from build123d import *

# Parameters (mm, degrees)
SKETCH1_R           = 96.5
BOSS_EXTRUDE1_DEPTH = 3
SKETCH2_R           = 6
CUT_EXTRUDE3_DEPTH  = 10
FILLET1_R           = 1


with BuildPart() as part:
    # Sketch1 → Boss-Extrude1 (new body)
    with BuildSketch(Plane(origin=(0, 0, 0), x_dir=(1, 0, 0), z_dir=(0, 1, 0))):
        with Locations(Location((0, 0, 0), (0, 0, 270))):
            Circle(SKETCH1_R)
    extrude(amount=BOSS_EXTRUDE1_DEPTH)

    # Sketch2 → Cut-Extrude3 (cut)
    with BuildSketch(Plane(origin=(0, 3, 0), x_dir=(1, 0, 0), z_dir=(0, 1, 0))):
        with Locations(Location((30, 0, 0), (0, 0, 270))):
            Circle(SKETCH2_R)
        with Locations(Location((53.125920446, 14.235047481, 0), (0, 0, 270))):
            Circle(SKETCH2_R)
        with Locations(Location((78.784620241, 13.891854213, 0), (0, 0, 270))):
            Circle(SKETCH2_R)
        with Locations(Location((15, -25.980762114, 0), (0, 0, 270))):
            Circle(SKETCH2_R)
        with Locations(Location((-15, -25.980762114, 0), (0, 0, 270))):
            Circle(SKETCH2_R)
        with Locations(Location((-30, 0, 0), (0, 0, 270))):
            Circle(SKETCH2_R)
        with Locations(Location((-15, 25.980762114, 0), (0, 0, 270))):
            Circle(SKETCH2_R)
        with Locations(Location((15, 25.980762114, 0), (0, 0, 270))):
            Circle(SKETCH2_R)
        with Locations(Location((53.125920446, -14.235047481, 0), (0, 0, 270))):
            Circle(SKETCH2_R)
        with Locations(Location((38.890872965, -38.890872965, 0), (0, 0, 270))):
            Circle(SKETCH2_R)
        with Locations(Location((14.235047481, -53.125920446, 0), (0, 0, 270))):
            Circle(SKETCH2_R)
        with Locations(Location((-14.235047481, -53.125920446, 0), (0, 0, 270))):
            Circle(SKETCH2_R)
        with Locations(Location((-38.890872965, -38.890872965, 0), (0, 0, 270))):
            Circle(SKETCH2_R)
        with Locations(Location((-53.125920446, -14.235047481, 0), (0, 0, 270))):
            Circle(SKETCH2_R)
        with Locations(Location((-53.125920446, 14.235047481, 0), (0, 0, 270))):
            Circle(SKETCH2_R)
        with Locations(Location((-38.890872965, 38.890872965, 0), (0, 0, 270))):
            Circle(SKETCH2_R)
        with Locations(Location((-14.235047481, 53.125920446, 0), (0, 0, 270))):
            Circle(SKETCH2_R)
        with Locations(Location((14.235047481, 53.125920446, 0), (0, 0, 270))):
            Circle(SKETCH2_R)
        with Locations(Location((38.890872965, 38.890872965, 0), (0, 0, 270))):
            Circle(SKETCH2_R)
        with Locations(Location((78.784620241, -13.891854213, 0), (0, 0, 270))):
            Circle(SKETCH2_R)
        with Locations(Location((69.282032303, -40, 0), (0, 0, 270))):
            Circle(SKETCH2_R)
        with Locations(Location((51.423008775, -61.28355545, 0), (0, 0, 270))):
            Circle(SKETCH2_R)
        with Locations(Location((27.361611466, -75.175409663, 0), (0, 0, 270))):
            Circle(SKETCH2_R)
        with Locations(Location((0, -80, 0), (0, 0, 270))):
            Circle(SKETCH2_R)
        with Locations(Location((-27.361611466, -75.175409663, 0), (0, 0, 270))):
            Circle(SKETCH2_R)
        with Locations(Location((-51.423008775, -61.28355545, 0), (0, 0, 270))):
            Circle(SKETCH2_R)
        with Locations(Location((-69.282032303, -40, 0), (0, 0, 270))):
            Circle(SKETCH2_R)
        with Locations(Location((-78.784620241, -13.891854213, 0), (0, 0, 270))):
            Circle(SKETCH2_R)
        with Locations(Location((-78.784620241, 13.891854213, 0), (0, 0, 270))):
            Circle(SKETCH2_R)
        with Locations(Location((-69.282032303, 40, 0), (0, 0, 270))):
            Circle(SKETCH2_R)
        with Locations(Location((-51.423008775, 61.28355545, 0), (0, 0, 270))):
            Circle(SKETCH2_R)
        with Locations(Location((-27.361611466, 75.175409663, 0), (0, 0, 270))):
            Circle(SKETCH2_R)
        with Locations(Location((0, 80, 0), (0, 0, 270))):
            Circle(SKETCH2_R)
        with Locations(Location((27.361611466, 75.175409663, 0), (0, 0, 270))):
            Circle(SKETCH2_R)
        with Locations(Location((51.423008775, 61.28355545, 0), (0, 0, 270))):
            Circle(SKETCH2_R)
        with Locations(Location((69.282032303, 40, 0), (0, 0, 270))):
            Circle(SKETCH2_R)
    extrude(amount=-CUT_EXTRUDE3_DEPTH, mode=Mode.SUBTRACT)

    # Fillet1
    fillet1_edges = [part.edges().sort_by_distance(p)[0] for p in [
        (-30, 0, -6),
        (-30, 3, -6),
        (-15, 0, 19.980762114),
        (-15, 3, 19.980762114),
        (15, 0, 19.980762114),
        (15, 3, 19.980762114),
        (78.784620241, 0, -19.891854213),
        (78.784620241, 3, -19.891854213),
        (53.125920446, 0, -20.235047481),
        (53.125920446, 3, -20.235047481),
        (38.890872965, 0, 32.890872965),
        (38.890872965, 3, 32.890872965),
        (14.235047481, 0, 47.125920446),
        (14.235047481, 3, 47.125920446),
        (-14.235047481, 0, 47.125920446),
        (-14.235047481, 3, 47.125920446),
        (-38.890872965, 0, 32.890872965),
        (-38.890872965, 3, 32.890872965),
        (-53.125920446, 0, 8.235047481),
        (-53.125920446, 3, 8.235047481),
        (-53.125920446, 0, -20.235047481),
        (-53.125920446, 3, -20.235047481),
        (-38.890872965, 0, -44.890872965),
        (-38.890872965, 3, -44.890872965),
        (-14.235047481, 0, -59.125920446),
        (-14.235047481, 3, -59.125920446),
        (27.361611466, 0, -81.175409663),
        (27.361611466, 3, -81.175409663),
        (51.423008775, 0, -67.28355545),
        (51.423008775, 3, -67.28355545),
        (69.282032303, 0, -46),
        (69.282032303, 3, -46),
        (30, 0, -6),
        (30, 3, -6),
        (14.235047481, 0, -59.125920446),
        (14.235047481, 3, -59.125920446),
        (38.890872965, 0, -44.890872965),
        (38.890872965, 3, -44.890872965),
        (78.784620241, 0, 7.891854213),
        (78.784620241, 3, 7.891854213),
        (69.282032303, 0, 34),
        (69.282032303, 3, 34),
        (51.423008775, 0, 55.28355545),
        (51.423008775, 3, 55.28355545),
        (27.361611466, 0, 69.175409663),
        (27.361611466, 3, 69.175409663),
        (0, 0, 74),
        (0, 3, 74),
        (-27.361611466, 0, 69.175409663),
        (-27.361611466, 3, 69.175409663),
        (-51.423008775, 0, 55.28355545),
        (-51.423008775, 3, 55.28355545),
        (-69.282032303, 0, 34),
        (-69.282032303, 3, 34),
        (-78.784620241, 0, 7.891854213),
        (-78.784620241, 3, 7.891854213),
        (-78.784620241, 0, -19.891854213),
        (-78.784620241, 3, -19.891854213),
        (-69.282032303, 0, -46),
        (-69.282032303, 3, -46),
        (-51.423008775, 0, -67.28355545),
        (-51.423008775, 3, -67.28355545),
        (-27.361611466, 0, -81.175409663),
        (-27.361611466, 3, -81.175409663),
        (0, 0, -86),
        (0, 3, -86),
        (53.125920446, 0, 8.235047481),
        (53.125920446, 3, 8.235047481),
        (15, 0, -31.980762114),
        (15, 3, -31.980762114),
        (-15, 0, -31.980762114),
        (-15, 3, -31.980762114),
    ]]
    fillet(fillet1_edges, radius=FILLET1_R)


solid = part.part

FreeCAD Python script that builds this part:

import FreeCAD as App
import Part
import Sketcher

V = App.Vector


def edges_at(feature, points):
    """Names of the edges that pass closest to the given points."""
    edges = feature.Shape.Edges
    near = lambda p: min(range(len(edges)), key=lambda i: edges[i].distToShape(Part.Vertex(*p))[0])
    return sorted({f"Edge{near(p) + 1}" for p in points})

doc = App.newDocument("Part")
body = doc.addObject("PartDesign::Body", "Body")

sketch1 = doc.addObject("Sketcher::SketchObject", "Sketch")
body.addObject(sketch1)
sketch1.AttachmentSupport = (doc.XZ_Plane, [""])
sketch1.MapMode = "FlatFace"
sketch1.addGeometry(Part.Circle(V(0, 0, 0), V(0, 0, 1), 96), False)
sketch1.addConstraint([
    Sketcher.Constraint("Coincident", 0, 3, -1, 1),
    Sketcher.Constraint("Diameter", 0, 193.0),
])
pad1 = doc.addObject("PartDesign::Pad", "Pad")
body.addObject(pad1)
pad1.Profile = sketch1
pad1.Length = 3
pad1.Reversed = True

sketch2 = doc.addObject("Sketcher::SketchObject", "Sketch001")
body.addObject(sketch2)
sketch2.AttachmentSupport = (doc.XZ_Plane, [""])
sketch2.MapMode = "FlatFace"
sketch2.AttachmentOffset = App.Placement(V(0, 0, -3), App.Rotation())
sketch2.addGeometry([
    Part.Circle(V(30, 0, 0), V(0, 0, 1), 6),
    Part.Circle(V(53, -14, 0), V(0, 0, 1), 6),
    Part.Circle(V(79, -14, 0), V(0, 0, 1), 6),
    Part.Circle(V(15, 26, 0), V(0, 0, 1), 6),
    Part.Circle(V(-15, 26, 0), V(0, 0, 1), 6),
    Part.Circle(V(-30, 0, 0), V(0, 0, 1), 6),
    Part.Circle(V(-15, -26, 0), V(0, 0, 1), 6),
    Part.Circle(V(15, -26, 0), V(0, 0, 1), 6),
    Part.Circle(V(53, 14, 0), V(0, 0, 1), 6),
    Part.Circle(V(39, 39, 0), V(0, 0, 1), 6),
    Part.Circle(V(14, 53, 0), V(0, 0, 1), 6),
    Part.Circle(V(-14, 53, 0), V(0, 0, 1), 6),
    Part.Circle(V(-39, 39, 0), V(0, 0, 1), 6),
    Part.Circle(V(-53, 14, 0), V(0, 0, 1), 6),
    Part.Circle(V(-53, -14, 0), V(0, 0, 1), 6),
    Part.Circle(V(-39, -39, 0), V(0, 0, 1), 6),
    Part.Circle(V(-14, -53, 0), V(0, 0, 1), 6),
    Part.Circle(V(14, -53, 0), V(0, 0, 1), 6),
    Part.Circle(V(39, -39, 0), V(0, 0, 1), 6),
    Part.Circle(V(79, 14, 0), V(0, 0, 1), 6),
    Part.Circle(V(69, 40, 0), V(0, 0, 1), 6),
    Part.Circle(V(51, 61, 0), V(0, 0, 1), 6),
    Part.Circle(V(27, 75, 0), V(0, 0, 1), 6),
    Part.Circle(V(0, 80, 0), V(0, 0, 1), 6),
    Part.Circle(V(-27, 75, 0), V(0, 0, 1), 6),
    Part.Circle(V(-51, 61, 0), V(0, 0, 1), 6),
    Part.Circle(V(-69, 40, 0), V(0, 0, 1), 6),
    Part.Circle(V(-79, 14, 0), V(0, 0, 1), 6),
    Part.Circle(V(-79, -14, 0), V(0, 0, 1), 6),
    Part.Circle(V(-69, -40, 0), V(0, 0, 1), 6),
    Part.Circle(V(-51, -61, 0), V(0, 0, 1), 6),
    Part.Circle(V(-27, -75, 0), V(0, 0, 1), 6),
    Part.Circle(V(0, -80, 0), V(0, 0, 1), 6),
    Part.Circle(V(27, -75, 0), V(0, 0, 1), 6),
    Part.Circle(V(51, -61, 0), V(0, 0, 1), 6),
    Part.Circle(V(69, -40, 0), V(0, 0, 1), 6),
], False)
sketch2.addConstraint([
    Sketcher.Constraint("Equal", 0, 1),
    Sketcher.Constraint("Equal", 1, 2),
    Sketcher.Constraint("Equal", 2, 3),
    Sketcher.Constraint("Equal", 3, 4),
    Sketcher.Constraint("Equal", 4, 5),
    Sketcher.Constraint("Equal", 5, 6),
    Sketcher.Constraint("Equal", 6, 7),
    Sketcher.Constraint("Equal", 7, 8),
    Sketcher.Constraint("Equal", 8, 9),
    Sketcher.Constraint("Equal", 9, 10),
    Sketcher.Constraint("Equal", 10, 11),
    Sketcher.Constraint("Equal", 11, 12),
    Sketcher.Constraint("Equal", 12, 13),
    Sketcher.Constraint("Equal", 13, 14),
    Sketcher.Constraint("Equal", 14, 15),
    Sketcher.Constraint("Equal", 15, 16),
    Sketcher.Constraint("Equal", 16, 17),
    Sketcher.Constraint("Equal", 17, 18),
    Sketcher.Constraint("Equal", 18, 19),
    Sketcher.Constraint("Equal", 19, 20),
    Sketcher.Constraint("Equal", 20, 21),
    Sketcher.Constraint("Equal", 21, 22),
    Sketcher.Constraint("Equal", 22, 23),
    Sketcher.Constraint("Equal", 23, 24),
    Sketcher.Constraint("Equal", 24, 25),
    Sketcher.Constraint("Equal", 25, 26),
    Sketcher.Constraint("Equal", 26, 27),
    Sketcher.Constraint("Equal", 27, 28),
    Sketcher.Constraint("Equal", 28, 29),
    Sketcher.Constraint("Equal", 29, 30),
    Sketcher.Constraint("Equal", 30, 31),
    Sketcher.Constraint("Equal", 31, 32),
    Sketcher.Constraint("Equal", 32, 33),
    Sketcher.Constraint("Equal", 33, 34),
    Sketcher.Constraint("Equal", 34, 35),
    Sketcher.Constraint("Symmetric", 0, 3, 5, 3, -1, 1),
    Sketcher.Constraint("Symmetric", 3, 3, 6, 3, -1, 1),
    Sketcher.Constraint("Symmetric", 4, 3, 7, 3, -1, 1),
    Sketcher.Constraint("Symmetric", 1, 3, 13, 3, -1, 1),
    Sketcher.Constraint("Symmetric", 8, 3, 14, 3, -1, 1),
    Sketcher.Constraint("Symmetric", 9, 3, 15, 3, -1, 1),
    Sketcher.Constraint("Symmetric", 10, 3, 16, 3, -1, 1),
    Sketcher.Constraint("Symmetric", 11, 3, 17, 3, -1, 1),
    Sketcher.Constraint("Symmetric", 12, 3, 18, 3, -1, 1),
    Sketcher.Constraint("Symmetric", 2, 3, 27, 3, -1, 1),
    Sketcher.Constraint("Symmetric", 19, 3, 28, 3, -1, 1),
    Sketcher.Constraint("Symmetric", 20, 3, 29, 3, -1, 1),
    Sketcher.Constraint("Symmetric", 21, 3, 30, 3, -1, 1),
    Sketcher.Constraint("Symmetric", 22, 3, 31, 3, -1, 1),
    Sketcher.Constraint("Symmetric", 23, 3, 32, 3, -1, 1),
    Sketcher.Constraint("Symmetric", 24, 3, 33, 3, -1, 1),
    Sketcher.Constraint("Symmetric", 25, 3, 34, 3, -1, 1),
    Sketcher.Constraint("Symmetric", 26, 3, 35, 3, -1, 1),
    Sketcher.Constraint("Symmetric", 3, 3, 4, 3, -2),
    Sketcher.Constraint("Symmetric", 10, 3, 11, 3, -2),
    Sketcher.Constraint("Symmetric", 9, 3, 12, 3, -2),
    Sketcher.Constraint("Symmetric", 8, 3, 13, 3, -2),
    Sketcher.Constraint("Symmetric", 22, 3, 24, 3, -2),
    Sketcher.Constraint("Symmetric", 21, 3, 25, 3, -2),
    Sketcher.Constraint("Symmetric", 20, 3, 26, 3, -2),
    Sketcher.Constraint("Symmetric", 19, 3, 27, 3, -2),
    Sketcher.Constraint("PointOnObject", 0, 3, -1),
    Sketcher.Constraint("PointOnObject", 23, 3, -2),
    Sketcher.Constraint("Diameter", 0, 12.0),
    Sketcher.Constraint("DistanceX", -1, 1, 0, 3, 30.0),
    Sketcher.Constraint("DistanceX", -1, 1, 3, 3, 15.0),
    Sketcher.Constraint("DistanceY", -1, 1, 20, 3, 40.0),
    Sketcher.Constraint("DistanceY", -1, 1, 23, 3, 80.0),
    Sketcher.Constraint("DistanceX", 1, 3, 2, 3, 25.6587),
    Sketcher.Constraint("DistanceY", 2, 3, 8, 3, 28.126902),
    Sketcher.Constraint("DistanceX", -1, 1, 1, 3, 53.12592),
    Sketcher.Constraint("DistanceY", -1, 1, 10, 3, 53.12592),
    Sketcher.Constraint("DistanceX", -1, 1, 21, 3, 51.423009),
    Sketcher.Constraint("DistanceX", -1, 1, 22, 3, 27.361611),
    Sketcher.Constraint("DistanceY", -1, 1, 22, 3, 75.17541),
    Sketcher.Constraint("DistanceY", 1, 3, 3, 3, 40.21581),
    Sketcher.Constraint("DistanceY", 3, 3, 9, 3, 12.910111),
    Sketcher.Constraint("DistanceY", 3, 3, 10, 3, 27.145158),
    Sketcher.Constraint("DistanceX", 11, 3, 9, 3, 53.12592),
    Sketcher.Constraint("DistanceX", 8, 3, 20, 3, 16.156112),
    Sketcher.Constraint("DistanceX", 9, 3, 20, 3, 30.391159),
    Sketcher.Constraint("DistanceY", -1, 1, 21, 3, 61.283555),
])
pocket1 = doc.addObject("PartDesign::Pocket", "Pocket")
body.addObject(pocket1)
pocket1.Profile = sketch2
pocket1.Length = 10
pocket1.Reversed = True
doc.recompute()

fillet = doc.addObject("PartDesign::Fillet", "Fillet")
body.addObject(fillet)
fillet.Base = (pocket1, edges_at(pocket1, [
    (-30, 0, -6),
    (-30, 3, -6),
    (-15, 0, 19.981),
    (-15, 3, 19.981),
    (15, 0, 19.981),
    (15, 3, 19.981),
    (78.785, 0, -19.892),
    (78.785, 3, -19.892),
    (53.126, 0, -20.235),
    (53.126, 3, -20.235),
    (38.891, 0, 32.891),
    (38.891, 3, 32.891),
    (14.235, 0, 47.126),
    (14.235, 3, 47.126),
    (-14.235, 0, 47.126),
    (-14.235, 3, 47.126),
    (-38.891, 0, 32.891),
    (-38.891, 3, 32.891),
    (-53.126, 0, 8.235),
    (-53.126, 3, 8.235),
    (-53.126, 0, -20.235),
    (-53.126, 3, -20.235),
    (-38.891, 0, -44.891),
    (-38.891, 3, -44.891),
    (-14.235, 0, -59.126),
    (-14.235, 3, -59.126),
    (27.362, 0, -81.175),
    (27.362, 3, -81.175),
    (51.423, 0, -67.284),
    (51.423, 3, -67.284),
    (69.282, 0, -46),
    (69.282, 3, -46),
    (30, 0, -6),
    (30, 3, -6),
    (14.235, 0, -59.126),
    (14.235, 3, -59.126),
    (38.891, 0, -44.891),
    (38.891, 3, -44.891),
    (78.785, 0, 7.892),
    (78.785, 3, 7.892),
    (69.282, 0, 34),
    (69.282, 3, 34),
    (51.423, 0, 55.284),
    (51.423, 3, 55.284),
    (27.362, 0, 69.175),
    (27.362, 3, 69.175),
    (0, 0, 74),
    (0, 3, 74),
    (-27.362, 0, 69.175),
    (-27.362, 3, 69.175),
    (-51.423, 0, 55.284),
    (-51.423, 3, 55.284),
    (-69.282, 0, 34),
    (-69.282, 3, 34),
    (-78.785, 0, 7.892),
    (-78.785, 3, 7.892),
    (-78.785, 0, -19.892),
    (-78.785, 3, -19.892),
    (-69.282, 0, -46),
    (-69.282, 3, -46),
    (-51.423, 0, -67.284),
    (-51.423, 3, -67.284),
    (-27.362, 0, -81.175),
    (-27.362, 3, -81.175),
    (0, 0, -86),
    (0, 3, -86),
    (53.126, 0, 8.235),
    (53.126, 3, 8.235),
    (15, 0, -31.981),
    (15, 3, -31.981),
    (-15, 0, -31.981),
    (-15, 3, -31.981),
]))
fillet.Radius = 1

doc.recompute()
